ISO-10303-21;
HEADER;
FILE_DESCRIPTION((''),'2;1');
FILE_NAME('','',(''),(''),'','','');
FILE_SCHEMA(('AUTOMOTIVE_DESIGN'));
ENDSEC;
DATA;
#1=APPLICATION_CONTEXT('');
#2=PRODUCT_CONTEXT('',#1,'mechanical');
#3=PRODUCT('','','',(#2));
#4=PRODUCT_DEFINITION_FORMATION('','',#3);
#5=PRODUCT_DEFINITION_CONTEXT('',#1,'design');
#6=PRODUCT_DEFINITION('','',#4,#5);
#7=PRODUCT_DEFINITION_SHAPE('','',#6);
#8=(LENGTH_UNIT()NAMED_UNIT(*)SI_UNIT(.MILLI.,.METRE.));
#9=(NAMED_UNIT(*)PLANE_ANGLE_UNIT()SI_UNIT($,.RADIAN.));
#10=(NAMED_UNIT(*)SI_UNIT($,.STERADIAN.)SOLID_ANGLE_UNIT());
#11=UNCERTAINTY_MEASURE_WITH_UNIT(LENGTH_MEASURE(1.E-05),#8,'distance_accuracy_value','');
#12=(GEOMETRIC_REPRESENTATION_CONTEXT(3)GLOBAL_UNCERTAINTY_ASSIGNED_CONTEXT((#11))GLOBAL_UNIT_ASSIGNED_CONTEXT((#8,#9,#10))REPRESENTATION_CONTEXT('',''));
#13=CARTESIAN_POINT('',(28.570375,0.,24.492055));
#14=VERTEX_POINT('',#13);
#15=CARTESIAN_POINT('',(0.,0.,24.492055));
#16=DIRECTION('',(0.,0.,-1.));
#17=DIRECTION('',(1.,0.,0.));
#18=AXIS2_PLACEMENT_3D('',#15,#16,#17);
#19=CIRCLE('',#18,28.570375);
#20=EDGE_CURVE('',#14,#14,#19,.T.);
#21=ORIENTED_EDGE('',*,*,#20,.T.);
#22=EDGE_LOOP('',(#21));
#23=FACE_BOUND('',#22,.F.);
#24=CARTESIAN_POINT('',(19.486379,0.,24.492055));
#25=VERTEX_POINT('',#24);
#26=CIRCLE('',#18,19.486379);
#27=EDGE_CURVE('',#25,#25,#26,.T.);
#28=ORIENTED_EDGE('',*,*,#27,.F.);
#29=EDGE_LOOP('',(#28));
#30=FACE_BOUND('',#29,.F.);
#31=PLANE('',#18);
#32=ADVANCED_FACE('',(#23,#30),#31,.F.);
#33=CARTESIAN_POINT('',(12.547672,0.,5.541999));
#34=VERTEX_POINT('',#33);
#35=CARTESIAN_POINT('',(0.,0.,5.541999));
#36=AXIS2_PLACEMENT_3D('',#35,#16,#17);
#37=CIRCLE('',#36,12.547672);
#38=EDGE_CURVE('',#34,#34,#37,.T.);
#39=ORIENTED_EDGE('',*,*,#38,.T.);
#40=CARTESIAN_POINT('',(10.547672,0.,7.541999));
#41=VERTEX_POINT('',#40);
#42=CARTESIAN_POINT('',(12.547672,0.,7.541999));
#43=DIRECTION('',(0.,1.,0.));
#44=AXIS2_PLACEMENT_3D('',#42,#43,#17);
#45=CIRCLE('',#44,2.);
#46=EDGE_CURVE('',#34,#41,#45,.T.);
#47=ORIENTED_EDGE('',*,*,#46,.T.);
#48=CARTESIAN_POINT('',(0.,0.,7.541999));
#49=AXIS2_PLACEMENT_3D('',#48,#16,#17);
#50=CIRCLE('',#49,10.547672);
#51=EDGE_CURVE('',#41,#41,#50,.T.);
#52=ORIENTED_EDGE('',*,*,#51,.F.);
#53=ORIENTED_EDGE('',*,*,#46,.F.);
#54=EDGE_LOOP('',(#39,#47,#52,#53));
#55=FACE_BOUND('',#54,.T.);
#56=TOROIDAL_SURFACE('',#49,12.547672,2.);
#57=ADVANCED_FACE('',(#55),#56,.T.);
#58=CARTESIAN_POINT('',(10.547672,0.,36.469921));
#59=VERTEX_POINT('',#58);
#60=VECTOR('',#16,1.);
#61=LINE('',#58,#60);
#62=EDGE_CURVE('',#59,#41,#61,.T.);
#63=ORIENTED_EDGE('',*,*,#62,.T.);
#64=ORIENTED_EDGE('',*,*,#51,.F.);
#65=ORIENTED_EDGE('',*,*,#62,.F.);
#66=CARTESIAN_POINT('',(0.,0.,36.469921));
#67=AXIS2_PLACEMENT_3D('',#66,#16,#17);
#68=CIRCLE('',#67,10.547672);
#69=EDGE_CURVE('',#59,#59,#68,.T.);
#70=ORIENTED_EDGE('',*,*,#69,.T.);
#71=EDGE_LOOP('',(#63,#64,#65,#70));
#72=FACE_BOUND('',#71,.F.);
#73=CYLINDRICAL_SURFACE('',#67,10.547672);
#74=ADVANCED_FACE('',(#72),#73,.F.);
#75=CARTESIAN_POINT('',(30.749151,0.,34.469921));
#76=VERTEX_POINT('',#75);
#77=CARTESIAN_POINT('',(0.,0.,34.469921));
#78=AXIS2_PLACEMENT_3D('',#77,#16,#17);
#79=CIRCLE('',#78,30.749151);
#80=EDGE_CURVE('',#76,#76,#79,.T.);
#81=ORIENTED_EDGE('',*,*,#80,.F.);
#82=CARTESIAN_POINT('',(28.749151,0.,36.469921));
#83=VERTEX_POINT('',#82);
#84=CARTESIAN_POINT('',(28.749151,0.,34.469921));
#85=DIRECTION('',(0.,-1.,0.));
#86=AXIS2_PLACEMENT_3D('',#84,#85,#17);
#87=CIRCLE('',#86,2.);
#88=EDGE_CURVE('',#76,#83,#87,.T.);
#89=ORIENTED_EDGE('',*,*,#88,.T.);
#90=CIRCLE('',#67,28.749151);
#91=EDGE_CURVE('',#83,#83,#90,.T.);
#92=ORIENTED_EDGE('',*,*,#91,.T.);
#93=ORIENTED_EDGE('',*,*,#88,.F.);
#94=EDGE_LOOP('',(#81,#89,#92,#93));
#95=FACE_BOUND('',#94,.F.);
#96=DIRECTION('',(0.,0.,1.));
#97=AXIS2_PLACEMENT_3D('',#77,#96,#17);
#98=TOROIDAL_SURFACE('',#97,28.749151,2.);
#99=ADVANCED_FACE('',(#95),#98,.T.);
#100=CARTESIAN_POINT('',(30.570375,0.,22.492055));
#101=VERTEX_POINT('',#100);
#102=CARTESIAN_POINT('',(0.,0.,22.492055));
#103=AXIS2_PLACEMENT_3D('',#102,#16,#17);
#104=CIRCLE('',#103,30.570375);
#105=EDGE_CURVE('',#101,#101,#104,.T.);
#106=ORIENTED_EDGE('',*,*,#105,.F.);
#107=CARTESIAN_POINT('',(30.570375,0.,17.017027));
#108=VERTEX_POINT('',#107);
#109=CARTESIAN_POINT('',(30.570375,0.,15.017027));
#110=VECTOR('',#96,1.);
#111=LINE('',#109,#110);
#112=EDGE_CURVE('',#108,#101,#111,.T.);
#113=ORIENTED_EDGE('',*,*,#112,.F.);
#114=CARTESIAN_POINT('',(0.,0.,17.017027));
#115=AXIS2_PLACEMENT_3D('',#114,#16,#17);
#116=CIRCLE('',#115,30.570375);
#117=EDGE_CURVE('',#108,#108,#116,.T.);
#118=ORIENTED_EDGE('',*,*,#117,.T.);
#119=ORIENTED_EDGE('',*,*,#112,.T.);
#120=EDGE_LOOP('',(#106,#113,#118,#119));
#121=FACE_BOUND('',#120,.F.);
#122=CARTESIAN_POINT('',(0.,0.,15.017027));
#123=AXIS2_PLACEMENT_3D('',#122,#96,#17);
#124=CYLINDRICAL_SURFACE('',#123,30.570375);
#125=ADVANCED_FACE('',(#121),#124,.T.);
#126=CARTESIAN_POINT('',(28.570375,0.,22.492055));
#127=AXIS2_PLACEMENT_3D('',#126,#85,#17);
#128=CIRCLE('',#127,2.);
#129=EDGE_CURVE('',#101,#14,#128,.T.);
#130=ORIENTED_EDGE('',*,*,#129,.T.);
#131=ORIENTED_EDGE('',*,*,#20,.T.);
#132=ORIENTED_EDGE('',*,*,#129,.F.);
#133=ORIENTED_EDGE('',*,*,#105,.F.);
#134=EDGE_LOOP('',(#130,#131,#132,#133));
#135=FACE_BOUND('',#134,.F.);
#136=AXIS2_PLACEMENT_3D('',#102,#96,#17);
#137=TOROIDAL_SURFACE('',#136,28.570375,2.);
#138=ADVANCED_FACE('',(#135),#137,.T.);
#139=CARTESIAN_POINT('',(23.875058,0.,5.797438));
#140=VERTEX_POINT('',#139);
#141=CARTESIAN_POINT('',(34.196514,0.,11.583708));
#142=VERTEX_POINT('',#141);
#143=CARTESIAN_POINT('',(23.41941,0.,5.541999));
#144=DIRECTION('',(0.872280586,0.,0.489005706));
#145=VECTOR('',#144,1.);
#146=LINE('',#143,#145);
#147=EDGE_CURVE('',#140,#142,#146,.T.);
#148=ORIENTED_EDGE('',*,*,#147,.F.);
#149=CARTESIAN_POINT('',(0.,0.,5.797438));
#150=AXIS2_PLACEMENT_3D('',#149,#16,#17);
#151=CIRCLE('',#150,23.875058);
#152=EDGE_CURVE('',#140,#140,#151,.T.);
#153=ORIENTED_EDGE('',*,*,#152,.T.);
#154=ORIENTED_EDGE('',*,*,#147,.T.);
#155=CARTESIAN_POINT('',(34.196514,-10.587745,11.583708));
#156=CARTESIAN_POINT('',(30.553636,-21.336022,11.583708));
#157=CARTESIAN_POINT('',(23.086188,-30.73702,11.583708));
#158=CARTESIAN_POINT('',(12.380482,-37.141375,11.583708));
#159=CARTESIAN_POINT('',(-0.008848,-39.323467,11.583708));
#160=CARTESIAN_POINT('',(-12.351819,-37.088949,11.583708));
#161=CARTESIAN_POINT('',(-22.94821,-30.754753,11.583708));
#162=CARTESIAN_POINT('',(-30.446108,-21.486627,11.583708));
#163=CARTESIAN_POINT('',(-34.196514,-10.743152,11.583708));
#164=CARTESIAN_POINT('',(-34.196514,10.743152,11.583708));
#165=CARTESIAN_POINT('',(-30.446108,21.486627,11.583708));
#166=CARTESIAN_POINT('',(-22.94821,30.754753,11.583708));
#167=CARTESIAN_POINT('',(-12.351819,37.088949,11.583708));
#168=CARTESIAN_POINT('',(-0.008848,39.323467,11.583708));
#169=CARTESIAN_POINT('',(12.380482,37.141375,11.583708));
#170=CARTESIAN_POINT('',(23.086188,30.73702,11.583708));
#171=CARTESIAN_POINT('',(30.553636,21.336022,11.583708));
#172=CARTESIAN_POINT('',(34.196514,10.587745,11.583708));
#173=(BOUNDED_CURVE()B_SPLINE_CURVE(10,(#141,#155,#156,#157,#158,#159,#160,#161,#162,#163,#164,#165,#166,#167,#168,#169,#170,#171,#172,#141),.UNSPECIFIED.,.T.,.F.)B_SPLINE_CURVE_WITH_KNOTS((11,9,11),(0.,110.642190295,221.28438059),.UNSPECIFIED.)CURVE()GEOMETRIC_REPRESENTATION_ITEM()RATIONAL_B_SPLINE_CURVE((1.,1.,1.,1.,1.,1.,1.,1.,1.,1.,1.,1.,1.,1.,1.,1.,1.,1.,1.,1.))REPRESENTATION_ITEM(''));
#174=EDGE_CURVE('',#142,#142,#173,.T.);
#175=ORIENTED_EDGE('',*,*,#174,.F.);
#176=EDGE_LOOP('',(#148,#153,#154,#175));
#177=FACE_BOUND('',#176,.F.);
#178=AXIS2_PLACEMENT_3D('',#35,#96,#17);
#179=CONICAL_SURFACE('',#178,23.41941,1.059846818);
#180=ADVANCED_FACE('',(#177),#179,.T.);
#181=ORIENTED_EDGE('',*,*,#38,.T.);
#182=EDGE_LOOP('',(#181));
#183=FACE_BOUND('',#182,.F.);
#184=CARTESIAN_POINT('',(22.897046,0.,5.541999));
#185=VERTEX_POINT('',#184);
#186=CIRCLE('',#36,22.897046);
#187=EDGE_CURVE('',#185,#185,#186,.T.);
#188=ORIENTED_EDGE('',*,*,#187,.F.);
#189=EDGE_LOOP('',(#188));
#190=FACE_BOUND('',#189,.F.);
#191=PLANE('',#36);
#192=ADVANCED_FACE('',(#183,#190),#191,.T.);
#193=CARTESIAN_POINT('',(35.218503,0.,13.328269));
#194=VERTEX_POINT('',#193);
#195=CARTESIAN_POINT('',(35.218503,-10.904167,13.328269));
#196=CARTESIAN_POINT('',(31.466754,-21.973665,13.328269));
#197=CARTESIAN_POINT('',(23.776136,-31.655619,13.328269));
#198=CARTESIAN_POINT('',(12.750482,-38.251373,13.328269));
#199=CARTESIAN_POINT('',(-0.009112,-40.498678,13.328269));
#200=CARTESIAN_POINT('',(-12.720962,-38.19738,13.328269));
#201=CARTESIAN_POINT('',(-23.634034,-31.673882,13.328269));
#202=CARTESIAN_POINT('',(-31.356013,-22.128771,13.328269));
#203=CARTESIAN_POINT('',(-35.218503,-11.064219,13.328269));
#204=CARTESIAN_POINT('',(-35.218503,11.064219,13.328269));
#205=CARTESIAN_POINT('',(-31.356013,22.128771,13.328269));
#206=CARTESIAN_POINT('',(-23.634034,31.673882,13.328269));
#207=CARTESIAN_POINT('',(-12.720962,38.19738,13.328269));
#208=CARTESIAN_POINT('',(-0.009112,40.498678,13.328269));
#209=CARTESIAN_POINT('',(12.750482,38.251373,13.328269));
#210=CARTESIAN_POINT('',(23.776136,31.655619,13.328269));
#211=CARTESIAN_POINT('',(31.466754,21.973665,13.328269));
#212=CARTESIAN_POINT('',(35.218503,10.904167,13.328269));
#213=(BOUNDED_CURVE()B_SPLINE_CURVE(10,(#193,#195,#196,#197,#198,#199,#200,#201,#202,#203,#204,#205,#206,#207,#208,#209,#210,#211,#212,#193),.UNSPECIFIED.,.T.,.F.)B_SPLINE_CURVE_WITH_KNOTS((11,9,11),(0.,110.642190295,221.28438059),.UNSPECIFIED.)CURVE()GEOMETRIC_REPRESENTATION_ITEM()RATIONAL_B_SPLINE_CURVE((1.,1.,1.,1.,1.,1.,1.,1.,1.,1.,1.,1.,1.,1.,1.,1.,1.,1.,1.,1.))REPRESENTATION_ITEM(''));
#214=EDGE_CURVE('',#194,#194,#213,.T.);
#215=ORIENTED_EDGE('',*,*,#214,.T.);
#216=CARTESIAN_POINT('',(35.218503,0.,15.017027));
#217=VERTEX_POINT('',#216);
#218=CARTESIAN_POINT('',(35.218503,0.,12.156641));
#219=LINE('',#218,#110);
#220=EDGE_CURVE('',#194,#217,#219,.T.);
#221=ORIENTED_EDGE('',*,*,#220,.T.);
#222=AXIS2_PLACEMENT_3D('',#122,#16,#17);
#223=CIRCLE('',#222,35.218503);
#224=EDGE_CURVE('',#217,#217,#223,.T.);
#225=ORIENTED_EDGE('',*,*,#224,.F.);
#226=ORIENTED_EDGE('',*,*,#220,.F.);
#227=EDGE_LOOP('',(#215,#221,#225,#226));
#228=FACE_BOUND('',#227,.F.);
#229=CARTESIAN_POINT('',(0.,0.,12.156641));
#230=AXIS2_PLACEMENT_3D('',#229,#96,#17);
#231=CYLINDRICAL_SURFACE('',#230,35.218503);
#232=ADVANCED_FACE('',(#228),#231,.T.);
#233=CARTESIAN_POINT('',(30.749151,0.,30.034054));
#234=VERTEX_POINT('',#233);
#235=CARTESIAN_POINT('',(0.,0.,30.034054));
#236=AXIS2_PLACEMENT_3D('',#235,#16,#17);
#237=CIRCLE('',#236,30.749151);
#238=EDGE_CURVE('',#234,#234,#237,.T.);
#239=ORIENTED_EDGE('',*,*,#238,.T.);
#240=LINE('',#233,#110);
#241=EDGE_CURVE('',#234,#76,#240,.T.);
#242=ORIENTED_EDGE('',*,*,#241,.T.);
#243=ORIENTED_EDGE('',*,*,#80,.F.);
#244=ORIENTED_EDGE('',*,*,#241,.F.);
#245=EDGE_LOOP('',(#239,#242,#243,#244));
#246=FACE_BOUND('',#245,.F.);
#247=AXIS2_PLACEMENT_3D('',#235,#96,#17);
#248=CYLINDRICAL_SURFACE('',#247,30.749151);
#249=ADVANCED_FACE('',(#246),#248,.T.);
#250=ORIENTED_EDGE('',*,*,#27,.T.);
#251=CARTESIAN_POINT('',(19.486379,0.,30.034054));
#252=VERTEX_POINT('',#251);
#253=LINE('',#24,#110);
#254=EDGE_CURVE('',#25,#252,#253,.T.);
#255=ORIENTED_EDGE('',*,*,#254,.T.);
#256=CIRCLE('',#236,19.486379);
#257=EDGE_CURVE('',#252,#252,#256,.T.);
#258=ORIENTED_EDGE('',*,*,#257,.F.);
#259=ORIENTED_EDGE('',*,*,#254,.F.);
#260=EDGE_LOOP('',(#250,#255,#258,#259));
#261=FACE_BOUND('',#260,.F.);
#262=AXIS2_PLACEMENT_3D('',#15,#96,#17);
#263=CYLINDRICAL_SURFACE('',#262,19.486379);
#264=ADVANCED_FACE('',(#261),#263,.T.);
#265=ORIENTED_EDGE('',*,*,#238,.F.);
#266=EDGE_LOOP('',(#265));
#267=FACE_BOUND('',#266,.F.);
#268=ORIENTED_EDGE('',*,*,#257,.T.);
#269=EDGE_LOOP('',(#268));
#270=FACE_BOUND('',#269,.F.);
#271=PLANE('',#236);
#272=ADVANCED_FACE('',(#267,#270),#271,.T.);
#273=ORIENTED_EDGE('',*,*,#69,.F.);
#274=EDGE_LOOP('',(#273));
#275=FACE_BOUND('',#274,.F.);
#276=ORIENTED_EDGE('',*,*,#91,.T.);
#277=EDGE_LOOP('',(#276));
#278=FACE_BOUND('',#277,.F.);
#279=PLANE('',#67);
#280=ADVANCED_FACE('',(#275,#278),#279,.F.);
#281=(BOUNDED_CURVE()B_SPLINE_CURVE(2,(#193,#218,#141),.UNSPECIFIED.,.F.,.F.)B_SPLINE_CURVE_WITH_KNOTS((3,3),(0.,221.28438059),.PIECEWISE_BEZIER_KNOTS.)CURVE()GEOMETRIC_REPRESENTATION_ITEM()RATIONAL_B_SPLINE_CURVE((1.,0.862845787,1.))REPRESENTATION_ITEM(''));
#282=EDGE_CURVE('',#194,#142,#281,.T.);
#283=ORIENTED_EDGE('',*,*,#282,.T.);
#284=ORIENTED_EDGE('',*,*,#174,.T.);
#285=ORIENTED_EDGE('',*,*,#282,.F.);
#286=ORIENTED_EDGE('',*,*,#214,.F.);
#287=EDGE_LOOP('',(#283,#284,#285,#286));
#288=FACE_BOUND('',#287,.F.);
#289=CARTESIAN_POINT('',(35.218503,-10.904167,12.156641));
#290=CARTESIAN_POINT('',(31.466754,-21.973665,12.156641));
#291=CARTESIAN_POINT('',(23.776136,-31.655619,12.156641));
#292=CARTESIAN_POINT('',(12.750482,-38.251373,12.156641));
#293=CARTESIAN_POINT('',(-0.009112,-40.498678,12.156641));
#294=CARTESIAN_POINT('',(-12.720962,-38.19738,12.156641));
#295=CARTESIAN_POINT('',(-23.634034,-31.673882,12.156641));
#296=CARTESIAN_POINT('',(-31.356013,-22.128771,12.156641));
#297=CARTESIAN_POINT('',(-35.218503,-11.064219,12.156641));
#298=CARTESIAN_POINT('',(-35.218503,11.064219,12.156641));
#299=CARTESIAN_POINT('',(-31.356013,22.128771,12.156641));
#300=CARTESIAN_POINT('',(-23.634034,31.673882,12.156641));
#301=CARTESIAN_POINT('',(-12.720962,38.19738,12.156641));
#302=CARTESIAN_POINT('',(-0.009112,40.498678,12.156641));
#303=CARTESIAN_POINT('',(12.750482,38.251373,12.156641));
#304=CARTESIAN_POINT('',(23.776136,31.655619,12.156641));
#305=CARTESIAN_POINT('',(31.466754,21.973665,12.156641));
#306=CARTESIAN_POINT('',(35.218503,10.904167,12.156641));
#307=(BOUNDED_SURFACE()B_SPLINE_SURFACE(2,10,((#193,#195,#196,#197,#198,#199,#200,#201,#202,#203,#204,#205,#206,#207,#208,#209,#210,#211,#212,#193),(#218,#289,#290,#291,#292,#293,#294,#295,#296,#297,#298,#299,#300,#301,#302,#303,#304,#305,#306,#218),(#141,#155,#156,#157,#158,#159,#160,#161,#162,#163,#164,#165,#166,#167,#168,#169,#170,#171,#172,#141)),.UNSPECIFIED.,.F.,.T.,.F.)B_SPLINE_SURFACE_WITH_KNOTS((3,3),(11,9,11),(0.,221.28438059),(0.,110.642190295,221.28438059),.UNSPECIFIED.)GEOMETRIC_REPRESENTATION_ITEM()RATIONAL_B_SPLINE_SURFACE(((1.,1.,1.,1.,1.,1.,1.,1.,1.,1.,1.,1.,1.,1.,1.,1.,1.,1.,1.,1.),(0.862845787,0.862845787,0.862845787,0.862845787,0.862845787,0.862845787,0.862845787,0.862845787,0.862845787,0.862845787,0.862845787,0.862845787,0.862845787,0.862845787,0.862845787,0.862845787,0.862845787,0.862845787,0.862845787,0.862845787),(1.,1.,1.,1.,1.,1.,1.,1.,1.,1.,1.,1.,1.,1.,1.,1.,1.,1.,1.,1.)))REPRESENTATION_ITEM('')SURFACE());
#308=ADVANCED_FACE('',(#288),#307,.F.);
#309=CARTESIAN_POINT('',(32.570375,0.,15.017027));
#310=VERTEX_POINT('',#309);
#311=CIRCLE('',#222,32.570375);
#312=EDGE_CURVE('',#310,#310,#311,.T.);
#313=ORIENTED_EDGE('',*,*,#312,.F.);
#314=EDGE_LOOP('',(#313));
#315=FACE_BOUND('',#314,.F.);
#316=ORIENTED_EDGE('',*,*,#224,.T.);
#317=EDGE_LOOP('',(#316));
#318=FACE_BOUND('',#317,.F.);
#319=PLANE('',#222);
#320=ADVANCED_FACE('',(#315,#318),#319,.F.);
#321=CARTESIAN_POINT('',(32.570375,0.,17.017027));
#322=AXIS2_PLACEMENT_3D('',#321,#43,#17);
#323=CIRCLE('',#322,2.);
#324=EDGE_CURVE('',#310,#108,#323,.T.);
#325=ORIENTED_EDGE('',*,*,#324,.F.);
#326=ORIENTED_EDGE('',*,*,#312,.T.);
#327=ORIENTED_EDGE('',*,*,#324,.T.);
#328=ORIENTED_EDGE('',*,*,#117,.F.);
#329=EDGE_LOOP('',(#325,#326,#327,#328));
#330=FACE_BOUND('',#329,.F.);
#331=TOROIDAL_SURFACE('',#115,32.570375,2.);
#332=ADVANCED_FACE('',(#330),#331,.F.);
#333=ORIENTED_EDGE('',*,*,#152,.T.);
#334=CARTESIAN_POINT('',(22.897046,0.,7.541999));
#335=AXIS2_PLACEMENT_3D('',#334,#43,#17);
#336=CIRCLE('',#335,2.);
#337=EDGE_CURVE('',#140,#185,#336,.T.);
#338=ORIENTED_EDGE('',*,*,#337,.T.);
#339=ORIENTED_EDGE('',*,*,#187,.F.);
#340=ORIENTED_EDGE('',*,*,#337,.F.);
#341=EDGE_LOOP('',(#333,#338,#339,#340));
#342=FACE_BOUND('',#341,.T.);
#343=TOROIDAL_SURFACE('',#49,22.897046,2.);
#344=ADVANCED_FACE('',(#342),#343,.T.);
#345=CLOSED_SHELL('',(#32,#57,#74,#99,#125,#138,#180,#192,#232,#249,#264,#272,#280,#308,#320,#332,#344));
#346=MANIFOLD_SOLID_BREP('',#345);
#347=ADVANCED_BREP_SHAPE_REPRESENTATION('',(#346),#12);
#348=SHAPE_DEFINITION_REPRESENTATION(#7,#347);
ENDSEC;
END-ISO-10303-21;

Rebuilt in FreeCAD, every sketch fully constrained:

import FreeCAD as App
import Part
import Sketcher
from FreeCAD import Vector
Q = App.Units.Quantity


def edges_at(feature, points):
    """Names of the edges that pass closest to the given points."""
    edges = feature.Shape.Edges
    near = lambda p: min(range(len(edges)), key=lambda i: edges[i].distToShape(Part.Vertex(*p))[0])
    return sorted({f"Edge{near(p) + 1}" for p in points})

doc = App.newDocument("Part")
params = doc.addObject("Spreadsheet::Sheet", "Params")
for row, (alias, value) in enumerate([
    ("revolution_angle", "360 deg"),
    ("fillet_radius", "2 mm"),
    ("fillet2_radius", "2 mm"),
], start=1):
    params.set(f"A{row}", alias)
    params.set(f"B{row}", "=" + value)
    params.setAlias(f"B{row}", alias)

body = doc.addObject("PartDesign::Body", "Body")

# Sketch on XZ plane
sketch1 = body.newObject("Sketcher::SketchObject", "Sketch")
sketch1.AttachmentSupport = (doc.getObject("XZ_Plane"), [""])
sketch1.MapMode = "FlatFace"
sketch1.addGeometry(Part.LineSegment(Vector(10.5, 36.5, 0), Vector(10.5, 5.5, 0)), False)
sketch1.addGeometry(Part.LineSegment(Vector(10.5, 5.5, 0), Vector(23.4, 5.5, 0)), False)
sketch1.addGeometry(Part.LineSegment(Vector(23.4, 5.5, 0), Vector(35.2, 12.2, 0)), False)
sketch1.addGeometry(Part.LineSegment(Vector(35.2, 12.2, 0), Vector(35.2, 15, 0)), False)
sketch1.addGeometry(Part.LineSegment(Vector(35.2, 15, 0), Vector(30.6, 15, 0)), False)
sketch1.addGeometry(Part.LineSegment(Vector(30.6, 15, 0), Vector(30.6, 24.5, 0)), False)
sketch1.addGeometry(Part.LineSegment(Vector(30.6, 24.5, 0), Vector(19.5, 24.5, 0)), False)
sketch1.addGeometry(Part.LineSegment(Vector(19.5, 24.5, 0), Vector(19.5, 30, 0)), False)
sketch1.addGeometry(Part.LineSegment(Vector(19.5, 30, 0), Vector(30.7, 30, 0)), False)
sketch1.addGeometry(Part.LineSegment(Vector(30.7, 30, 0), Vector(30.7, 36.5, 0)), False)
sketch1.addGeometry(Part.LineSegment(Vector(30.7, 36.5, 0), Vector(10.5, 36.5, 0)), False)
sketch1.addConstraint(Sketcher.Constraint("Coincident", 0, 2, 1, 1))
sketch1.addConstraint(Sketcher.Constraint("Coincident", 1, 2, 2, 1))
sketch1.addConstraint(Sketcher.Constraint("Coincident", 2, 2, 3, 1))
sketch1.addConstraint(Sketcher.Constraint("Coincident", 3, 2, 4, 1))
sketch1.addConstraint(Sketcher.Constraint("Coincident", 4, 2, 5, 1))
sketch1.addConstraint(Sketcher.Constraint("Coincident", 5, 2, 6, 1))
sketch1.addConstraint(Sketcher.Constraint("Coincident", 6, 2, 7, 1))
sketch1.addConstraint(Sketcher.Constraint("Coincident", 7, 2, 8, 1))
sketch1.addConstraint(Sketcher.Constraint("Coincident", 8, 2, 9, 1))
sketch1.addConstraint(Sketcher.Constraint("Coincident", 9, 2, 10, 1))
sketch1.addConstraint(Sketcher.Constraint("Coincident", 10, 2, 0, 1))
sketch1.addConstraint(Sketcher.Constraint("Vertical", 0))
sketch1.addConstraint(Sketcher.Constraint("Horizontal", 1))
sketch1.addConstraint(Sketcher.Constraint("Vertical", 3))
sketch1.addConstraint(Sketcher.Constraint("Horizontal", 4))
sketch1.addConstraint(Sketcher.Constraint("Vertical", 5))
sketch1.addConstraint(Sketcher.Constraint("Horizontal", 6))
sketch1.addConstraint(Sketcher.Constraint("Vertical", 7))
sketch1.addConstraint(Sketcher.Constraint("Horizontal", 8))
sketch1.addConstraint(Sketcher.Constraint("Vertical", 9))
sketch1.addConstraint(Sketcher.Constraint("Horizontal", 10))
sketch1.addConstraint(Sketcher.Constraint("DistanceY", 7, 1, 7, 2, Q("5.541999 mm")))
sketch1.addConstraint(Sketcher.Constraint("DistanceY", -1, 1, 0, 2, Q("5.541999 mm")))
sketch1.addConstraint(Sketcher.Constraint("DistanceX", 10, 2, 10, 1, Q("20.201479 mm")))
sketch1.addConstraint(Sketcher.Constraint("DistanceY", 0, 2, 0, 1, Q("30.927922 mm")))
sketch1.addConstraint(Sketcher.Constraint("DistanceX", 1, 1, 1, 2, Q("12.871738 mm")))
sketch1.addConstraint(Sketcher.Constraint("DistanceX", 4, 2, 4, 1, Q("4.648128 mm")))
sketch1.addConstraint(Sketcher.Constraint("DistanceX", 6, 2, 6, 1, Q("11.083996 mm")))
sketch1.addConstraint(Sketcher.Constraint("DistanceX", 8, 1, 8, 2, Q("11.262772 mm")))
sketch1.addConstraint(Sketcher.Constraint("DistanceY", 3, 1, 3, 2, Q("2.860386 mm")))
sketch1.addConstraint(Sketcher.Constraint("DistanceY", 5, 1, 5, 2, Q("9.475028 mm")))
sketch1.addConstraint(Sketcher.Constraint("DistanceY", 9, 1, 9, 2, Q("6.435867 mm")))
sketch1.addConstraint(Sketcher.Constraint("DistanceX", -1, 1, 1, 2, Q("23.41941 mm")))
revolution = body.newObject("PartDesign::Revolution", "Revolution")
revolution.Profile = sketch1
revolution.ReferenceAxis = (sketch1, ["V_Axis"])
revolution.setExpression("Angle", "Params.revolution_angle")
doc.recompute()

fillet = body.newObject("PartDesign::Fillet", "Fillet")
fillet.Base = (revolution, edges_at(revolution, [
    (-30.749, 0, 36.47),
    (-30.57, 0, 15.017),
    (-30.57, 0, 24.492),
    (30.57, 0, 19.755),
]))
fillet.setExpression("Radius", "Params.fillet_radius")
doc.recompute()

fillet2 = body.newObject("PartDesign::Fillet", "Fillet001")
fillet2.Base = (fillet, edges_at(fillet, [(-35.219, 0, 12.157), (-23.419, 0, 5.542), (-10.548, 0, 5.542)]))
fillet2.setExpression("Radius", "Params.fillet2_radius")

doc.recompute()
